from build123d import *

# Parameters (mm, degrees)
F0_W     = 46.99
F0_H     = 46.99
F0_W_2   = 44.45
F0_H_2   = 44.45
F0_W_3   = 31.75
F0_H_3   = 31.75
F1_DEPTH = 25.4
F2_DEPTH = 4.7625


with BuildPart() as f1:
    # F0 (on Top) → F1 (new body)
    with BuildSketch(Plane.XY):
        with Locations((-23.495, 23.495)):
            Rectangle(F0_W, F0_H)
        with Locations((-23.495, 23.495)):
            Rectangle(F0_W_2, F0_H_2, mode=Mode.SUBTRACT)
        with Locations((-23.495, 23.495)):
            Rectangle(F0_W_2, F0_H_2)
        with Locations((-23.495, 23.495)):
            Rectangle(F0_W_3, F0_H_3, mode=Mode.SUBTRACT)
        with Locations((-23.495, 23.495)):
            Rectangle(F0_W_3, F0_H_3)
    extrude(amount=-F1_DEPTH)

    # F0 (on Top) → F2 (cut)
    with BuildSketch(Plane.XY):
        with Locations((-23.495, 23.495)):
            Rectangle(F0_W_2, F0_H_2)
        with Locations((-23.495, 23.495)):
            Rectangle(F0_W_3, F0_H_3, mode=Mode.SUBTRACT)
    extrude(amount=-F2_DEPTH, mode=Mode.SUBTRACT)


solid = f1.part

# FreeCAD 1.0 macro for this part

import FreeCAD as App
import Part
import Sketcher
Q = App.Units.Quantity


def add_polygon(sketch, points):
    """Adds a closed chain of lines whose ends are joined by coincident constraints."""
    first, n = sketch.GeometryCount, len(points)
    for a, b in zip(points, points[1:] + points[:1]):
        sketch.addGeometry(Part.LineSegment(App.Vector(*a, 0), App.Vector(*b, 0)), False)
    for i in range(n):
        sketch.addConstraint(Sketcher.Constraint("Coincident", first + i, 2, first + (i + 1) % n, 1))

doc = App.newDocument("Part")
body = doc.addObject("PartDesign::Body", "Body")

# Sketch on XY plane
sketch1 = body.newObject("Sketcher::SketchObject", "Sketch")
sketch1.AttachmentSupport = (doc.getObject("XY_Plane"), [""])
sketch1.MapMode = "FlatFace"
add_polygon(sketch1, [(-47, 47), (-47, 0), (0, 0), (0, 47)])  # lines 0-3
sketch1.addConstraint(Sketcher.Constraint("Vertical", 0))
sketch1.addConstraint(Sketcher.Constraint("Horizontal", 1))
sketch1.addConstraint(Sketcher.Constraint("Vertical", 2))
sketch1.addConstraint(Sketcher.Constraint("Horizontal", 3))
sketch1.addConstraint(Sketcher.Constraint("Coincident", 1, 2, -1, 1))
sketch1.addConstraint(Sketcher.Constraint("Equal", 3, 0))
sketch1.addConstraint(Sketcher.Constraint("DistanceX", 1, 1, 1, 2, Q("1.85 in")))
pad1 = body.newObject("PartDesign::Pad", "Pad")
pad1.Profile = sketch1
pad1.Length = Q("1 in")
pad1.Reversed = True

# Sketch on XY plane
sketch2 = body.newObject("Sketcher::SketchObject", "Sketch001")
sketch2.AttachmentSupport = (doc.getObject("XY_Plane"), [""])
sketch2.MapMode = "FlatFace"
add_polygon(sketch2, [(-46, 46), (-46, 1), (-1, 1), (-1, 46)])  # lines 0-3
add_polygon(sketch2, [(-8, 8), (-39, 8), (-39, 39), (-8, 39)])  # lines 4-7
sketch2.addConstraint(Sketcher.Constraint("Vertical", 0))
sketch2.addConstraint(Sketcher.Constraint("Horizontal", 1))
sketch2.addConstraint(Sketcher.Constraint("Vertical", 2))
sketch2.addConstraint(Sketcher.Constraint("Horizontal", 3))
sketch2.addConstraint(Sketcher.Constraint("Horizontal", 4))
sketch2.addConstraint(Sketcher.Constraint("Vertical", 5))
sketch2.addConstraint(Sketcher.Constraint("Horizontal", 6))
sketch2.addConstraint(Sketcher.Constraint("Vertical", 7))
sketch2.addConstraint(Sketcher.Constraint("Equal", 3, 0))
sketch2.addConstraint(Sketcher.Constraint("Equal", 6, 5))
sketch2.addConstraint(Sketcher.Constraint("DistanceX", 1, 1, 1, 2, Q("1.75 in")))
sketch2.addConstraint(Sketcher.Constraint("DistanceX", 4, 2, 4, 1, Q("1.25 in")))
sketch2.addConstraint(Sketcher.Constraint("DistanceX", 0, 2, -1, 1, Q("1.8 in")))
sketch2.addConstraint(Sketcher.Constraint("DistanceY", -1, 1, 2, 2, Q("1.8 in")))
sketch2.addConstraint(Sketcher.Constraint("DistanceY", -1, 1, 4, 2, Q("0.3 in")))
sketch2.addConstraint(Sketcher.Constraint("DistanceX", 6, 2, -1, 1, Q("0.3 in")))
pocket1 = body.newObject("PartDesign::Pocket", "Pocket")
pocket1.Profile = sketch2
pocket1.Length = Q("0.1875 in")

doc.recompute()
